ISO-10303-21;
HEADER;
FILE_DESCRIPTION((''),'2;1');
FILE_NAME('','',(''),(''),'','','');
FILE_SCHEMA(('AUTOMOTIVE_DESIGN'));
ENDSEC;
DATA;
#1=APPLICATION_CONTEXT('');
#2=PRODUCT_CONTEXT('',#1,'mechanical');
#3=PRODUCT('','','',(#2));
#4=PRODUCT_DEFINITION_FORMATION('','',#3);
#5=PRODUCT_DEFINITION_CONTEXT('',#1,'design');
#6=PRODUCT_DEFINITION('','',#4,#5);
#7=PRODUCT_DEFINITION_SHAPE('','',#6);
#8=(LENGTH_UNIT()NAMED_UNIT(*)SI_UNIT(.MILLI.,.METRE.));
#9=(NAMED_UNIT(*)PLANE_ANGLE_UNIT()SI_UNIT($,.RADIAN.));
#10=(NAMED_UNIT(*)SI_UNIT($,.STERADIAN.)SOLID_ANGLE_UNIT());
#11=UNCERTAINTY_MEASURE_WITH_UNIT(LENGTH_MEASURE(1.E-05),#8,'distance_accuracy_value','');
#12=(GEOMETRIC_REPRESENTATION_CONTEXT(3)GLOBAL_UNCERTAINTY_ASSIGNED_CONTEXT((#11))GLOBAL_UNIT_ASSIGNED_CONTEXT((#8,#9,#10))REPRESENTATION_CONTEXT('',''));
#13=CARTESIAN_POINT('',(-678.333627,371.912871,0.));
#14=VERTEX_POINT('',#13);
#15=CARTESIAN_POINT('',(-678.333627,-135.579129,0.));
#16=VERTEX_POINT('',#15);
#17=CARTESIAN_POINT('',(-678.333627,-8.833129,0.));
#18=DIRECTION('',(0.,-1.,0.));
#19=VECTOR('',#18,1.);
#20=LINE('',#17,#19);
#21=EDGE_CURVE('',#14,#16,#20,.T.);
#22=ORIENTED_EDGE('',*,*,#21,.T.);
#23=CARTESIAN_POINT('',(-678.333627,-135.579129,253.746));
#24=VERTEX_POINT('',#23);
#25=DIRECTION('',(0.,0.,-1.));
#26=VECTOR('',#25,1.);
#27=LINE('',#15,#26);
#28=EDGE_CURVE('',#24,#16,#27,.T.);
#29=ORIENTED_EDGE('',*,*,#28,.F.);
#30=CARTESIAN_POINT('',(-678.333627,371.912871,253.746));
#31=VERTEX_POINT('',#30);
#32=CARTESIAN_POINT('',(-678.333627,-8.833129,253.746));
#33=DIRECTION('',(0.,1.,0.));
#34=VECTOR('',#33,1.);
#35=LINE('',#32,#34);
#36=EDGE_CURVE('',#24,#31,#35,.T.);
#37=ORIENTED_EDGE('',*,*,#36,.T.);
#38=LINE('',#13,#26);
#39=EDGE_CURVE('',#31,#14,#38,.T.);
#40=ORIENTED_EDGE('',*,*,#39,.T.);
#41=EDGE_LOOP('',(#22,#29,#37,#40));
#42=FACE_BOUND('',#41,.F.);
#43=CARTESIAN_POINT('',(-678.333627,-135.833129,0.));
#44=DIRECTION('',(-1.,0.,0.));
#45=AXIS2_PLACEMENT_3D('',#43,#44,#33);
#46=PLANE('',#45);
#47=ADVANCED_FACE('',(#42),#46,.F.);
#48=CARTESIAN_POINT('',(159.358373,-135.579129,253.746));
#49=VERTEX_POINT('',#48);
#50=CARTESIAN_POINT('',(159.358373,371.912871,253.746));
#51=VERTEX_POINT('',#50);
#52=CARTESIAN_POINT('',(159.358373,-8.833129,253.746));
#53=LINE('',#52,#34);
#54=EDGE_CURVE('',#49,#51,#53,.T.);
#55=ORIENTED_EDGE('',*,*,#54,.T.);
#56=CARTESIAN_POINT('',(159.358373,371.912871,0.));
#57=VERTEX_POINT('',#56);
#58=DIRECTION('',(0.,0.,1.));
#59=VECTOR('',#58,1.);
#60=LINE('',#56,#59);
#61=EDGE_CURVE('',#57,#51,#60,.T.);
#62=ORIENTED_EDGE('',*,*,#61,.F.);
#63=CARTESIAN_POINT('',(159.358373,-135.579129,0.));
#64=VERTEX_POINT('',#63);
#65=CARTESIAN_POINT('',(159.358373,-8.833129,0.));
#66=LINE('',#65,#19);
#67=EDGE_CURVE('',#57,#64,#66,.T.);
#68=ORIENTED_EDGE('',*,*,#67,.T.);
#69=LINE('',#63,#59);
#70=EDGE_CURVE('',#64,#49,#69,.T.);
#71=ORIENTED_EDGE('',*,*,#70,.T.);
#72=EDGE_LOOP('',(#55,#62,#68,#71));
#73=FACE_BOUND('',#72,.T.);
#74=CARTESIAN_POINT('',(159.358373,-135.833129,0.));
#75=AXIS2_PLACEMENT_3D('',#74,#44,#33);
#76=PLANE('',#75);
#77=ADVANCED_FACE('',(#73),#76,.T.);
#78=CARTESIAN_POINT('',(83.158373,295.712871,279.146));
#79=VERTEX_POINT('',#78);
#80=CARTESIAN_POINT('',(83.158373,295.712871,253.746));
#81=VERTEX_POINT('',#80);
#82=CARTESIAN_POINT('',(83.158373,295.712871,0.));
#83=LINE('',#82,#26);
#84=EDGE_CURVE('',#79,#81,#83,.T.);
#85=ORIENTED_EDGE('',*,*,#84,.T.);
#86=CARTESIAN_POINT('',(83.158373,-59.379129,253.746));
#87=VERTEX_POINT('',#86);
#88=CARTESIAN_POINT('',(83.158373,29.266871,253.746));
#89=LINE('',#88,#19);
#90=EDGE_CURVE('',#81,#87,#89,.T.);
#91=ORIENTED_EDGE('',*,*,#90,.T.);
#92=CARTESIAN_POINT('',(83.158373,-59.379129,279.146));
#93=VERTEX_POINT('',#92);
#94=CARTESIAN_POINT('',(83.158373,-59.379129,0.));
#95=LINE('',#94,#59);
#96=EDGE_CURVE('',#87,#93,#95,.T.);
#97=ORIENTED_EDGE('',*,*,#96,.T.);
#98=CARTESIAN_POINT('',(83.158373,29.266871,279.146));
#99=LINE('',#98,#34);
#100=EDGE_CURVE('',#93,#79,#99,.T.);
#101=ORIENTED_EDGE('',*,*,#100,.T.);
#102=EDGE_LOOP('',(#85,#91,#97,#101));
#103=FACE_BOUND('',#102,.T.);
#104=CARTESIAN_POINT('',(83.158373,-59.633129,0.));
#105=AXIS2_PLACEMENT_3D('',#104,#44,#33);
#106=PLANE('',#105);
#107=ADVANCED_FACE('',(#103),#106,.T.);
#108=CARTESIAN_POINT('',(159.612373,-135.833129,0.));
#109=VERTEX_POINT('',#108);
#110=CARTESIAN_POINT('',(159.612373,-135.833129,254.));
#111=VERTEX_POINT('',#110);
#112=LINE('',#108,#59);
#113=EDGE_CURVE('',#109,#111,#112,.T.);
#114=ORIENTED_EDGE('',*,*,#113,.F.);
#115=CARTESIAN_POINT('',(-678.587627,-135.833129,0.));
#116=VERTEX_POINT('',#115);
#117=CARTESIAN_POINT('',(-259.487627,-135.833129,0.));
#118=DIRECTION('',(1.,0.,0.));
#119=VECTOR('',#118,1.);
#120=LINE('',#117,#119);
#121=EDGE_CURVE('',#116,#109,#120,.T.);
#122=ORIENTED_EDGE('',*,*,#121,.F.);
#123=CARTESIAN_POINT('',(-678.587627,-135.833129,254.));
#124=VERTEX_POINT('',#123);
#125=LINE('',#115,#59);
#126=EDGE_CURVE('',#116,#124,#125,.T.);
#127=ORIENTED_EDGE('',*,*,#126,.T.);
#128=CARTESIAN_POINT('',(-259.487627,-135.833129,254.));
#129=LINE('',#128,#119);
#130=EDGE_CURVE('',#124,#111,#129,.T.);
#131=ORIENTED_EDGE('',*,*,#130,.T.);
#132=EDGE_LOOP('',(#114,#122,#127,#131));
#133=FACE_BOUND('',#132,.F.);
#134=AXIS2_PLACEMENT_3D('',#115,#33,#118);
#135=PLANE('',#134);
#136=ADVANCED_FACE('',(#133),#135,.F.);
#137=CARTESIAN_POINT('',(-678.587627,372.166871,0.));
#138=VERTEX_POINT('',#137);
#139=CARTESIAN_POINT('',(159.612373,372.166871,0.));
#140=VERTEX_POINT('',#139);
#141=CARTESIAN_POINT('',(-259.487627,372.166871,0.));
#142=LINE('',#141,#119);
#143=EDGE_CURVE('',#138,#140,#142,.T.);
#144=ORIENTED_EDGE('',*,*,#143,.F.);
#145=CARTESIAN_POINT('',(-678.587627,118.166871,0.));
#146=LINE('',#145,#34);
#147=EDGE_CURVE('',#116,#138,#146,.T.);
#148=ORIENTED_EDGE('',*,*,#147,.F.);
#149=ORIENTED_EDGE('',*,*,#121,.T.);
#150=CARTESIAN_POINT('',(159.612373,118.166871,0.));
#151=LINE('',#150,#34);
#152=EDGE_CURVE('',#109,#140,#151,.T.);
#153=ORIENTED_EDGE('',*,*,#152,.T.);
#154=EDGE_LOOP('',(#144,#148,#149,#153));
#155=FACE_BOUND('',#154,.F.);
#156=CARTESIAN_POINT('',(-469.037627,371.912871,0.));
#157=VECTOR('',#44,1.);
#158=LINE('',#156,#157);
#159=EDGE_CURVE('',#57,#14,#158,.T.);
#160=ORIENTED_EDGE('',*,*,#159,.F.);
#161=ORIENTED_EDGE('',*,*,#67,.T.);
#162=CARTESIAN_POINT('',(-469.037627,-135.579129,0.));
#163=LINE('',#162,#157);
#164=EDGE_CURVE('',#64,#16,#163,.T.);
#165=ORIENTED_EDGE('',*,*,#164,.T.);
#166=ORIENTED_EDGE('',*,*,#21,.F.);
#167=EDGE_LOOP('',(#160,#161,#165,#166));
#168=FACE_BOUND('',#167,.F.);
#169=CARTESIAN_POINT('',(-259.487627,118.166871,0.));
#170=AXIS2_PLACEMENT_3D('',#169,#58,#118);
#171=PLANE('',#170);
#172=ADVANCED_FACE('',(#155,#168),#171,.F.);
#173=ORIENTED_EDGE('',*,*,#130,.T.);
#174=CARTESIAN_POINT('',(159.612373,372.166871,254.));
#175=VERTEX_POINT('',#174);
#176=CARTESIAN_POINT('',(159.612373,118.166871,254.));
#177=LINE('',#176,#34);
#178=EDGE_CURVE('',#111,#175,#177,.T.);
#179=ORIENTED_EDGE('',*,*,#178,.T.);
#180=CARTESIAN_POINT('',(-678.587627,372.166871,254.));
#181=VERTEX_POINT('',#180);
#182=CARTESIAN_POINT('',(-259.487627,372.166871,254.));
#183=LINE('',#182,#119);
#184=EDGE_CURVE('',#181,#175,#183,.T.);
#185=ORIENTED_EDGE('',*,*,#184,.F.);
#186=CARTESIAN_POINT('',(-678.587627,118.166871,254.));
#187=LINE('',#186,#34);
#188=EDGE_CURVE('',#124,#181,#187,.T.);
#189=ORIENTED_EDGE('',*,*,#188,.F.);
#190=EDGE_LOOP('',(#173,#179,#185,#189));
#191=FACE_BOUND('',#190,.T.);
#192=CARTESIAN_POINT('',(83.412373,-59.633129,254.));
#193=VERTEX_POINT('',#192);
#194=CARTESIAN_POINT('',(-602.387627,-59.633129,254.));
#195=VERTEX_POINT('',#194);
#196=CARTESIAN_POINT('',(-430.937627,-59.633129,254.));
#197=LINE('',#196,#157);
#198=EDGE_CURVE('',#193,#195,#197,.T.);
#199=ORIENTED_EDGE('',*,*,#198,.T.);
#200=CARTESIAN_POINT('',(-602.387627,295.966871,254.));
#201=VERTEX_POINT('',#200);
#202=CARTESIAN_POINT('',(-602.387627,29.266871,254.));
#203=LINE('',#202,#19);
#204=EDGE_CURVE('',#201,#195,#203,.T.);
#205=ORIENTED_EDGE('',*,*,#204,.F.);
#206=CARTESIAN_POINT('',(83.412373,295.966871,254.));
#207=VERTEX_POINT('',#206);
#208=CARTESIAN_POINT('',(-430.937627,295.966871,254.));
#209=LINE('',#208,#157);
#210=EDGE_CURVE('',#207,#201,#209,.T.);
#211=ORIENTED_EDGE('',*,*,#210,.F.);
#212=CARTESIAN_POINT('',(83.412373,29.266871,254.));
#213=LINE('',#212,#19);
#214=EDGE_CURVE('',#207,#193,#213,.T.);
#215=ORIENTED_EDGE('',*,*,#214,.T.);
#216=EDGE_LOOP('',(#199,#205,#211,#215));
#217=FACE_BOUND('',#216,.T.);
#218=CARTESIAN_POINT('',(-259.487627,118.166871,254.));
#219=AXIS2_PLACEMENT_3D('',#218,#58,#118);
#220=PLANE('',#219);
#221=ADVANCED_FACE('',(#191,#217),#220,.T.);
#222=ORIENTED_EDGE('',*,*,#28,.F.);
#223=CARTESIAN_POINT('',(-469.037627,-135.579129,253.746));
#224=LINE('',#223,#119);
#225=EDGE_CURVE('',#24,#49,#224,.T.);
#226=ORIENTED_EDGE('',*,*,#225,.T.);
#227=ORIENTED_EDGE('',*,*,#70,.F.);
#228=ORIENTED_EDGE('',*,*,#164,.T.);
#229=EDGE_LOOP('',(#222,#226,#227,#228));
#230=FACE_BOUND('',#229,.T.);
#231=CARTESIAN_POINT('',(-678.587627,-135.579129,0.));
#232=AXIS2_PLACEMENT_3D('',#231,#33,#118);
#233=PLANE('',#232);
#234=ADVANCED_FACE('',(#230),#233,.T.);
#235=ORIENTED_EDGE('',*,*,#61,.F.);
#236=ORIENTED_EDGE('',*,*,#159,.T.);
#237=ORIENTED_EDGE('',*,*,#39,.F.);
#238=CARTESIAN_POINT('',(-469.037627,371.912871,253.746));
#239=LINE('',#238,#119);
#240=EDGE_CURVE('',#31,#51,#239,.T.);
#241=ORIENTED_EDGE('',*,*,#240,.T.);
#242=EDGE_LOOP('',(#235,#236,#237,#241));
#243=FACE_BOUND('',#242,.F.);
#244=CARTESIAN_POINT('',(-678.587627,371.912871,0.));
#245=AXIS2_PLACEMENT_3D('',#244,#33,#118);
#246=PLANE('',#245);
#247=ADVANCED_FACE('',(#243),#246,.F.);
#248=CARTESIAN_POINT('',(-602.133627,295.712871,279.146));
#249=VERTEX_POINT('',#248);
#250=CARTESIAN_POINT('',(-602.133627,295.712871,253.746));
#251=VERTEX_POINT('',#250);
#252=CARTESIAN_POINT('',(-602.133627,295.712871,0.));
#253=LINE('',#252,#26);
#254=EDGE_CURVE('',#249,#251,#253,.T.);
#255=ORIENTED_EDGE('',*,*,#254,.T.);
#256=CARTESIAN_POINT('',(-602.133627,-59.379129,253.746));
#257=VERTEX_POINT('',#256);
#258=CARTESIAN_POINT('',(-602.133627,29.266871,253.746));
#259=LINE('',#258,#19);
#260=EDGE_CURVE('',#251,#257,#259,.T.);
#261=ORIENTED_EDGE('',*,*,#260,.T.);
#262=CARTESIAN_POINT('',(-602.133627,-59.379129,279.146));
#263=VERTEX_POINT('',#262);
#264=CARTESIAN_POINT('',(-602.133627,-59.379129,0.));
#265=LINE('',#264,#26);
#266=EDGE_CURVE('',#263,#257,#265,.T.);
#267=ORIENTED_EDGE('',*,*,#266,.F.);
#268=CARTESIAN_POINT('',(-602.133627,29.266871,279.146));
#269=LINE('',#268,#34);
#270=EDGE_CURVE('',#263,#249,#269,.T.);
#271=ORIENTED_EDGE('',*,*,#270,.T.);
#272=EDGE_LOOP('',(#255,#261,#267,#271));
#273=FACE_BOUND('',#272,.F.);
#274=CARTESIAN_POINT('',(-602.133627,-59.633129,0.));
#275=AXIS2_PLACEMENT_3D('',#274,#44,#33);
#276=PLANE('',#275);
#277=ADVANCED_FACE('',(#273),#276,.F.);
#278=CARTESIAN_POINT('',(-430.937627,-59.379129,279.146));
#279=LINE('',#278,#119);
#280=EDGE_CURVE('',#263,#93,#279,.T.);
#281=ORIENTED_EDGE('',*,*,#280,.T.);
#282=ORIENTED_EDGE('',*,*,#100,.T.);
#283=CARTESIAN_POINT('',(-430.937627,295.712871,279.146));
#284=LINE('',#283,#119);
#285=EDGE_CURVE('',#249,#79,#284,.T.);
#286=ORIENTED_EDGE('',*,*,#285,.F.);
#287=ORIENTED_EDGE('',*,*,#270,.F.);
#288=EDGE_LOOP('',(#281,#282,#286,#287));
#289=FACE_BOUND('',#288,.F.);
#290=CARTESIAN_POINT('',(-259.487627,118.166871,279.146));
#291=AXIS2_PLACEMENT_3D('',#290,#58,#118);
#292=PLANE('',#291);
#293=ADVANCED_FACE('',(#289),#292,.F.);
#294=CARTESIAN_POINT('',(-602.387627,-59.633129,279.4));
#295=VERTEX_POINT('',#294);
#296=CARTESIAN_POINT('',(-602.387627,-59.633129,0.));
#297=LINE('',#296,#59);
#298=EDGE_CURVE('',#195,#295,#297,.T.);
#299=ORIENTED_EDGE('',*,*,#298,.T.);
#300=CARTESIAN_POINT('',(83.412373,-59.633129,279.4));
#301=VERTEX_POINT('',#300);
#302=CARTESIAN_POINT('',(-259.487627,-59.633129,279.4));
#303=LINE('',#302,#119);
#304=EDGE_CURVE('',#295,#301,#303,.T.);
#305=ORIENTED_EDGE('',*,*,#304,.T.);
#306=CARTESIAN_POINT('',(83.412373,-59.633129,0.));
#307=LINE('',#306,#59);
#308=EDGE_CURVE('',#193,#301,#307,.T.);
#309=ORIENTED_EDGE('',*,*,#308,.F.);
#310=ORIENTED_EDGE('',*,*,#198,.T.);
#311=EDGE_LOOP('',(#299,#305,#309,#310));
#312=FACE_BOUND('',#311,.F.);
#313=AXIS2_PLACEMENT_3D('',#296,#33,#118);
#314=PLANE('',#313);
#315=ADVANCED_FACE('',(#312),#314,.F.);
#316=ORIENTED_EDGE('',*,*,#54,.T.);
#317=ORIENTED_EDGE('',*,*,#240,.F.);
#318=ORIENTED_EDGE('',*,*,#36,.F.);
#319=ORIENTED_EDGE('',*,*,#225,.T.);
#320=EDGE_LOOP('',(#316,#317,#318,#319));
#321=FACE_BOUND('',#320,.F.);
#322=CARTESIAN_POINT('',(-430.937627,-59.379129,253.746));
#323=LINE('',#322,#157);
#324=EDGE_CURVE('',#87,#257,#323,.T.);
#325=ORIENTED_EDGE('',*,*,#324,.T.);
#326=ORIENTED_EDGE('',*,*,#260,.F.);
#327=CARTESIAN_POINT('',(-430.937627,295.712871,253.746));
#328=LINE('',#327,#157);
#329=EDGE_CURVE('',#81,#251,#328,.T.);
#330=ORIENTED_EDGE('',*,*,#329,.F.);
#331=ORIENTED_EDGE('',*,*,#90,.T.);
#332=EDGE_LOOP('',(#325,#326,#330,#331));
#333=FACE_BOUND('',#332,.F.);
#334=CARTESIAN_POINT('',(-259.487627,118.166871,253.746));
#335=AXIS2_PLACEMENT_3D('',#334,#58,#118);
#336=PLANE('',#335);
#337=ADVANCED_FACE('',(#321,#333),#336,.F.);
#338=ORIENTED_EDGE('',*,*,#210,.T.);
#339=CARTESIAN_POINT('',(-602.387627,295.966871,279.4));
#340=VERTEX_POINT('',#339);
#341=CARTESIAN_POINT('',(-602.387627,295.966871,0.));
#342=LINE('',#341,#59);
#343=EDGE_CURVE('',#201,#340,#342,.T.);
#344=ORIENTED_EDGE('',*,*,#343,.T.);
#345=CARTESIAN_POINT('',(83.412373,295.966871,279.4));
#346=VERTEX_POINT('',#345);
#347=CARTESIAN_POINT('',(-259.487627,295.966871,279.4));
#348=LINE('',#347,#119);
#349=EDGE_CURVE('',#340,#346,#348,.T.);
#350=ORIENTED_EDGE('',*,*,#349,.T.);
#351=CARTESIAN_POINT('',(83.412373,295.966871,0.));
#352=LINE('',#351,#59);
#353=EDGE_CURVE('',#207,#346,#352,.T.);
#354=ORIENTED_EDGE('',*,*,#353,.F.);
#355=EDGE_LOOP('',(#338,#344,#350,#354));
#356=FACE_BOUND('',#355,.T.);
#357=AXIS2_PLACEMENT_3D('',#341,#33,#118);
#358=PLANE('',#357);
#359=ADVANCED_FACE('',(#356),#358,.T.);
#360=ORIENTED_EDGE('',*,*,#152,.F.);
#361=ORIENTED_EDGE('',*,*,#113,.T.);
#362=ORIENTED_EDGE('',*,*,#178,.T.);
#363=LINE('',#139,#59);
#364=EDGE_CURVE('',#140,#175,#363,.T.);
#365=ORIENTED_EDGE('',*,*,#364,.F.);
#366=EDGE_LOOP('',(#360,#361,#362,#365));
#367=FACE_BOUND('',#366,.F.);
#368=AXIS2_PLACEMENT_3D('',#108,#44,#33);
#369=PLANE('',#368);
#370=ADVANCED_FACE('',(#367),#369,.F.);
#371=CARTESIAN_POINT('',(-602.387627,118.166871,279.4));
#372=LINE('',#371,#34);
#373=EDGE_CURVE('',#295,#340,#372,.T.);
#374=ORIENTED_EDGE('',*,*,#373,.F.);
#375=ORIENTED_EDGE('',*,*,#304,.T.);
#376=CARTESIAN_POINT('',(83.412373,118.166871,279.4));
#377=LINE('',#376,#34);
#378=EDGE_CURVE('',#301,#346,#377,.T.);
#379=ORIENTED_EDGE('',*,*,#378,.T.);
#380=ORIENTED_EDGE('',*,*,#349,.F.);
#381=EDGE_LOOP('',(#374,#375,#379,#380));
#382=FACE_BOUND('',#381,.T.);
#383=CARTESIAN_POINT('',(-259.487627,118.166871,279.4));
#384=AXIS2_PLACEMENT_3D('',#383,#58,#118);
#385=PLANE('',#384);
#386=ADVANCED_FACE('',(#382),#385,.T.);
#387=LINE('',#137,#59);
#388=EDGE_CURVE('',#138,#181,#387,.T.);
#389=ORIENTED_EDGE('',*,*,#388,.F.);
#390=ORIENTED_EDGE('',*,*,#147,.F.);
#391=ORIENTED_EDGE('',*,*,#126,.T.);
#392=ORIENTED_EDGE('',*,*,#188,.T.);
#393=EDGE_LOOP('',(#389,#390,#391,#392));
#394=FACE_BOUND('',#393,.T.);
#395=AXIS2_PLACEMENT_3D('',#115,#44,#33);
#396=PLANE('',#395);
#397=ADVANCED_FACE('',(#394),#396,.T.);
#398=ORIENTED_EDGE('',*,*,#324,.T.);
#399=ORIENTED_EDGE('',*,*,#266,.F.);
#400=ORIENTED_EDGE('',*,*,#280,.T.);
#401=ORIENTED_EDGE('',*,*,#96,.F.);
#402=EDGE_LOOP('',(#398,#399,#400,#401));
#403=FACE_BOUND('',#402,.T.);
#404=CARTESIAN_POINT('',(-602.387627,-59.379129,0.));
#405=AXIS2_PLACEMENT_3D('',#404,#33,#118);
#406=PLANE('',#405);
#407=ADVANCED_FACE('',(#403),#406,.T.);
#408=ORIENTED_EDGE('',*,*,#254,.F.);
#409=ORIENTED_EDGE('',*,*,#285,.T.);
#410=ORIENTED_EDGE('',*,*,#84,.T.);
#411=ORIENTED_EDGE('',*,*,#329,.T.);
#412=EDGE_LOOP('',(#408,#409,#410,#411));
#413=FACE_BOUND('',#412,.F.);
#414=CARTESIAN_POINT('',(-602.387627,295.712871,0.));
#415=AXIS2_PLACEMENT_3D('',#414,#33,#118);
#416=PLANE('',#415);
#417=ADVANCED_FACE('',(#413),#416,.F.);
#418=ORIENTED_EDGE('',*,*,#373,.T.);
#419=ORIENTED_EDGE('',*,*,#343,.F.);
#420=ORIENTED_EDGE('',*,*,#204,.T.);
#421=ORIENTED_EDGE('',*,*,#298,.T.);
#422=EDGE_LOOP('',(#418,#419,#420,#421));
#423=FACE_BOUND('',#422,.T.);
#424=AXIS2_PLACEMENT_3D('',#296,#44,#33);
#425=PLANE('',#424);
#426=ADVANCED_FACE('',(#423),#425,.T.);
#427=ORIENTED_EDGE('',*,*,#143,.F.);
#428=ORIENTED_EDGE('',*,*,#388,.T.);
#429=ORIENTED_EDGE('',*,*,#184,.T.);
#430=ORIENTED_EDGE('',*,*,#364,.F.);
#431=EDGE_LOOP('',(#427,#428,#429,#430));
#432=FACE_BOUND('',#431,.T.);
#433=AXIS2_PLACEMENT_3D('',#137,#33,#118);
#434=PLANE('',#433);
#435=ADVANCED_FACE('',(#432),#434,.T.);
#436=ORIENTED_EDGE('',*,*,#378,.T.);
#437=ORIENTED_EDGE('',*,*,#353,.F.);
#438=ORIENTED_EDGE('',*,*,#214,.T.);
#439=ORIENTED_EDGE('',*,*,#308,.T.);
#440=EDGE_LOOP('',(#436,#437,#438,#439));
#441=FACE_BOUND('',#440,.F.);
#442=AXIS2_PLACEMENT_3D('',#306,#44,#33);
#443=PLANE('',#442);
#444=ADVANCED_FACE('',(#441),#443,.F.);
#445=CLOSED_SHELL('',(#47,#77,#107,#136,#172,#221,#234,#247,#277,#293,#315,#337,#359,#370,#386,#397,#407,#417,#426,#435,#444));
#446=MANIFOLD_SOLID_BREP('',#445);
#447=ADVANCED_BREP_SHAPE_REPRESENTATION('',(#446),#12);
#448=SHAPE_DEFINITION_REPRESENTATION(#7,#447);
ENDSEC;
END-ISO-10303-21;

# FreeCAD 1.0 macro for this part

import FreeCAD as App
import Part
import Sketcher

V = App.Vector
Q = App.Units.Quantity


def faces_at(feature, points):
    """Names of the faces that lie closest to the given points."""
    faces = feature.Shape.Faces
    near = lambda p: min(range(len(faces)), key=lambda i: faces[i].distToShape(Part.Vertex(*p))[0])
    return sorted({f"Face{near(p) + 1}" for p in points})

doc = App.newDocument("Part")
body = doc.addObject("PartDesign::Body", "Body")

sketch1 = doc.addObject("Sketcher::SketchObject", "Sketch")
body.addObject(sketch1)
sketch1.AttachmentSupport = (doc.XY_Plane, [""])
sketch1.MapMode = "FlatFace"
sketch1.addGeometry(Part.LineSegment(V(-678.587627, 372.166871, 0), V(-678.587627, -135.833129, 0)), False)
sketch1.addGeometry(Part.LineSegment(V(-678.587627, -135.833129, 0), V(159.612373, -135.833129, 0)), False)
sketch1.addGeometry(Part.LineSegment(V(159.612373, -135.833129, 0), V(159.612373, 372.166871, 0)), False)
sketch1.addGeometry(Part.LineSegment(V(159.612373, 372.166871, 0), V(-678.587627, 372.166871, 0)), False)
sketch1.addConstraint(Sketcher.Constraint("Coincident", 0, 2, 1, 1))
sketch1.addConstraint(Sketcher.Constraint("Coincident", 1, 2, 2, 1))
sketch1.addConstraint(Sketcher.Constraint("Coincident", 2, 2, 3, 1))
sketch1.addConstraint(Sketcher.Constraint("Coincident", 3, 2, 0, 1))
sketch1.addConstraint(Sketcher.Constraint("Vertical", 0))
sketch1.addConstraint(Sketcher.Constraint("Horizontal", 1))
sketch1.addConstraint(Sketcher.Constraint("Vertical", 2))
sketch1.addConstraint(Sketcher.Constraint("Horizontal", 3))
sketch1.addConstraint(Sketcher.Constraint("DistanceX", 1, 1, 1, 2, Q("33 in")))
sketch1.addConstraint(Sketcher.Constraint("DistanceY", 0, 2, 0, 1, Q("20 in")))
sketch1.addConstraint(Sketcher.Constraint("DistanceY", 0, 2, -1, 1, 135.833129))
sketch1.addConstraint(Sketcher.Constraint("DistanceX", 0, 2, -1, 1, 678.587627))
pad1 = doc.addObject("PartDesign::Pad", "Pad")
body.addObject(pad1)
pad1.Profile = sketch1
pad1.Length = Q("10 in")

sketch2 = doc.addObject("Sketcher::SketchObject", "Sketch001")
body.addObject(sketch2)
sketch2.AttachmentSupport = (doc.XY_Plane, [""])
sketch2.MapMode = "FlatFace"
sketch2.addGeometry(Part.LineSegment(V(-602.387627, 295.966871, 0), V(-602.387627, -59.633129, 0)), False)
sketch2.addGeometry(Part.LineSegment(V(-602.387627, -59.633129, 0), V(83.412373, -59.633129, 0)), False)
sketch2.addGeometry(Part.LineSegment(V(83.412373, -59.633129, 0), V(83.412373, 295.966871, 0)), False)
sketch2.addGeometry(Part.LineSegment(V(83.412373, 295.966871, 0), V(-602.387627, 295.966871, 0)), False)
sketch2.addConstraint(Sketcher.Constraint("Coincident", 0, 2, 1, 1))
sketch2.addConstraint(Sketcher.Constraint("Coincident", 1, 2, 2, 1))
sketch2.addConstraint(Sketcher.Constraint("Coincident", 2, 2, 3, 1))
sketch2.addConstraint(Sketcher.Constraint("Coincident", 3, 2, 0, 1))
sketch2.addConstraint(Sketcher.Constraint("Vertical", 0))
sketch2.addConstraint(Sketcher.Constraint("Horizontal", 1))
sketch2.addConstraint(Sketcher.Constraint("Vertical", 2))
sketch2.addConstraint(Sketcher.Constraint("Horizontal", 3))
sketch2.addConstraint(Sketcher.Constraint("DistanceX", 1, 1, 1, 2, Q("27 in")))
sketch2.addConstraint(Sketcher.Constraint("DistanceY", 0, 2, 0, 1, Q("14 in")))
sketch2.addConstraint(Sketcher.Constraint("DistanceY", 0, 2, -1, 1, 59.633129))
sketch2.addConstraint(Sketcher.Constraint("DistanceX", 0, 2, -1, 1, 602.387627))
pad2 = doc.addObject("PartDesign::Pad", "Pad001")
body.addObject(pad2)
pad2.Profile = sketch2
pad2.Length = Q("11 in")
doc.recompute()

thickness = doc.addObject("PartDesign::Thickness", "Thickness")
body.addObject(thickness)
thickness.Base = (pad2, faces_at(pad2, [(-259.488, 118.167, 0)]))
thickness.Value = Q("0.01 in")
thickness.Reversed = True
thickness.Join = "Intersection"

doc.recompute()
